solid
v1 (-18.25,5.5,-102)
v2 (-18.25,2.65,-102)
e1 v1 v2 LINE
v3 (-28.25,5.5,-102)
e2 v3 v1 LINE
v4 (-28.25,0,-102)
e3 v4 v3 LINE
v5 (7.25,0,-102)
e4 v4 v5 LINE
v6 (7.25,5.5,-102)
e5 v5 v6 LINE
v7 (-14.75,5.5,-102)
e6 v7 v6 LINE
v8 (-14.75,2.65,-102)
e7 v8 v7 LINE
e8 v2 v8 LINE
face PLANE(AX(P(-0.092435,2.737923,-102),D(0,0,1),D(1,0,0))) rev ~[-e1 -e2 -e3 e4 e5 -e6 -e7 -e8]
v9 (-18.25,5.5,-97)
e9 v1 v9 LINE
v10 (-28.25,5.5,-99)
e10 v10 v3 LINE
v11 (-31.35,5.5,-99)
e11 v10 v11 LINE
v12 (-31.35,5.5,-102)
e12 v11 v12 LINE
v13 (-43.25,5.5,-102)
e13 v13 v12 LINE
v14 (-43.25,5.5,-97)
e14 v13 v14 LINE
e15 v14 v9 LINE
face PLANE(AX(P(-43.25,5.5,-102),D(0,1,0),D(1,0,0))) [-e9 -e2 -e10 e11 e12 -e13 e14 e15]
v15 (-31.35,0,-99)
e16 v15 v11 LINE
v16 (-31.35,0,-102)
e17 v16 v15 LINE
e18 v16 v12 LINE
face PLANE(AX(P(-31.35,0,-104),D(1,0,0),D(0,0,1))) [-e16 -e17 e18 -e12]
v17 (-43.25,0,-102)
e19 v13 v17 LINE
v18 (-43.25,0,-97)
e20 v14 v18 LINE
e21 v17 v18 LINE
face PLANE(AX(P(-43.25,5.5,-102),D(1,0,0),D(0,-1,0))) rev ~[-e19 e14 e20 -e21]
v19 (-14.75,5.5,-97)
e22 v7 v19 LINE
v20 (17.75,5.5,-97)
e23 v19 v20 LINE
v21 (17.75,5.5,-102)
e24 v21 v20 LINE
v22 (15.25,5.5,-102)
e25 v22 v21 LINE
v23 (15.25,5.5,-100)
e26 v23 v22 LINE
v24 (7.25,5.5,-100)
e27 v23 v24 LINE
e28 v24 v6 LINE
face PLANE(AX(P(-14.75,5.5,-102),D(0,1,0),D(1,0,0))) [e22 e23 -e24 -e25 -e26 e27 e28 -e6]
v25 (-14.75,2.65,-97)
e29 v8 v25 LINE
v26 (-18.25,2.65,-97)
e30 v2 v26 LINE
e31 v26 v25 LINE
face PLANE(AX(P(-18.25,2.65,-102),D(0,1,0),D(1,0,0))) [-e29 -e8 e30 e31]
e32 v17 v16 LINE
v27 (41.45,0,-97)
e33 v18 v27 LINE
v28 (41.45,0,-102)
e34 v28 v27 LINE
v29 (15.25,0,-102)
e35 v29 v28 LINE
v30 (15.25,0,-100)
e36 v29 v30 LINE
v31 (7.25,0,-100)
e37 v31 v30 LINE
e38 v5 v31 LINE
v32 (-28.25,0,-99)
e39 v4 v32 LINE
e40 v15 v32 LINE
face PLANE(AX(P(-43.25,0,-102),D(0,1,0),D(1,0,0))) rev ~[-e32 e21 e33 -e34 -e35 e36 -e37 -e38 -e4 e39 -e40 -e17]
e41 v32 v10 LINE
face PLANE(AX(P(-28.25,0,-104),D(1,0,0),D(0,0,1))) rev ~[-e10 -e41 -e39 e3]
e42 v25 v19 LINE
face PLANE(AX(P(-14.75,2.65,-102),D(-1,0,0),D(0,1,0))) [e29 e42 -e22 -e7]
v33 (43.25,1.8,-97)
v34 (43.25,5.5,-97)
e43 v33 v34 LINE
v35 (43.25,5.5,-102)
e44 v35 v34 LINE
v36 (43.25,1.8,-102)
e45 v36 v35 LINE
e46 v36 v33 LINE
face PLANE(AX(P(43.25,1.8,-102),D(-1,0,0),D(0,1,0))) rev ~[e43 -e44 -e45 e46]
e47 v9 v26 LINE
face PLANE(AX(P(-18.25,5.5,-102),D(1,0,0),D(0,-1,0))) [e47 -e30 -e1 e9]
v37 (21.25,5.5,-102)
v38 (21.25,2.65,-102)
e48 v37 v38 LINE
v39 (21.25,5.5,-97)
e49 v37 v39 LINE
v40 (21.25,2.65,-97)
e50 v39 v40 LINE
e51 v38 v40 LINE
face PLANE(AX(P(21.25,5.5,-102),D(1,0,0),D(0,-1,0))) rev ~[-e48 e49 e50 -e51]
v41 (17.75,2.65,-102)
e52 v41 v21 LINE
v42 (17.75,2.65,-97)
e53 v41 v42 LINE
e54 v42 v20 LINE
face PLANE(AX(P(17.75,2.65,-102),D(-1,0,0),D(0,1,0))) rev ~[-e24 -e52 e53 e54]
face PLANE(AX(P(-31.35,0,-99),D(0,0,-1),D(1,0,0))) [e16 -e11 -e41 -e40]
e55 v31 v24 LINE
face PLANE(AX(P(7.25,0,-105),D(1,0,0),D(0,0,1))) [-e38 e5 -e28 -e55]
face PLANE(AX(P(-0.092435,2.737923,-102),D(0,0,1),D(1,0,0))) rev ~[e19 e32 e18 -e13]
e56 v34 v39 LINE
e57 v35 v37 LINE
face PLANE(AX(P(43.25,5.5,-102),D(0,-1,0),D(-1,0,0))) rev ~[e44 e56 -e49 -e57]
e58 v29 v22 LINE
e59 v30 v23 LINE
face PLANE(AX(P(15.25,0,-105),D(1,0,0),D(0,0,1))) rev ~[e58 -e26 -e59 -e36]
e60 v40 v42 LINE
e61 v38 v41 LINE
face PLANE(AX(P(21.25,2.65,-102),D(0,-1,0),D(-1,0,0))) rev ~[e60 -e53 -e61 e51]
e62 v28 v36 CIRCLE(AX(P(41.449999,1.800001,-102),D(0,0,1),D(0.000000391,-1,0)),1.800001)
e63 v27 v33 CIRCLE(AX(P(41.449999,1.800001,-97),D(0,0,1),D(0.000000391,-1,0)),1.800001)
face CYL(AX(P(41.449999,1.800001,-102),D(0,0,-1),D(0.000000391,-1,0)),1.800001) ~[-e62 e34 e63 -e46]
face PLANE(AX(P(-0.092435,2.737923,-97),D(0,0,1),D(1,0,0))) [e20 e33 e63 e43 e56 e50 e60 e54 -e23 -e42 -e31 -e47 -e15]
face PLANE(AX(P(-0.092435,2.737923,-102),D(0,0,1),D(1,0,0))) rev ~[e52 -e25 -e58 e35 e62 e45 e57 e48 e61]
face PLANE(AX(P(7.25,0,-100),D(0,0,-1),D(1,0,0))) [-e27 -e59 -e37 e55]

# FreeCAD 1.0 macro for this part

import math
import FreeCAD as App
import Part
import Sketcher

V = App.Vector
Q = App.Units.Quantity

doc = App.newDocument("Part")
body = doc.addObject("PartDesign::Body", "Body")

sketch1 = body.newObject("Sketcher::SketchObject", "Sketch")
sketch1.AttachmentSupport = (doc.getObject("XY_Plane"), [""])
sketch1.MapMode = "FlatFace"
sketch1.addGeometry([
    Part.LineSegment(V(-43.2, 0, 0), V(41.5, 0, 0)),
    Part.ArcOfCircle(Part.Circle(V(41.4, 1.8, 0), V(0, 0, 1), 1.8), math.radians(-90), math.radians(0)),
    Part.LineSegment(V(43.2, 1.8, 0), V(43.2, 5.5, 0)),
    Part.LineSegment(V(43.2, 5.5, 0), V(21.2, 5.5, 0)),
    Part.LineSegment(V(21.2, 5.5, 0), V(21.2, 2.6, 0)),
    Part.LineSegment(V(21.2, 2.6, 0), V(17.8, 2.6, 0)),
    Part.LineSegment(V(17.8, 2.6, 0), V(17.8, 5.5, 0)),
    Part.LineSegment(V(17.8, 5.5, 0), V(-14.8, 5.5, 0)),
    Part.LineSegment(V(-14.8, 5.5, 0), V(-14.8, 2.6, 0)),
    Part.LineSegment(V(-14.8, 2.6, 0), V(-18.2, 2.6, 0)),
    Part.LineSegment(V(-18.2, 2.6, 0), V(-18.2, 5.5, 0)),
    Part.LineSegment(V(-18.2, 5.5, 0), V(-43.2, 5.5, 0)),
    Part.LineSegment(V(-43.2, 5.5, 0), V(-43.2, 0, 0)),
], False)
sketch1.addConstraint([
    Sketcher.Constraint("Tangent", 0, 2, 1, 1),
    Sketcher.Constraint("Tangent", 1, 2, 2, 1),
    Sketcher.Constraint("Coincident", 2, 2, 3, 1),
    Sketcher.Constraint("Coincident", 3, 2, 4, 1),
    Sketcher.Constraint("Coincident", 4, 2, 5, 1),
    Sketcher.Constraint("Coincident", 5, 2, 6, 1),
    Sketcher.Constraint("Coincident", 6, 2, 7, 1),
    Sketcher.Constraint("Coincident", 7, 2, 8, 1),
    Sketcher.Constraint("Coincident", 8, 2, 9, 1),
    Sketcher.Constraint("Coincident", 9, 2, 10, 1),
    Sketcher.Constraint("Coincident", 10, 2, 11, 1),
    Sketcher.Constraint("Coincident", 11, 2, 12, 1),
    Sketcher.Constraint("Coincident", 12, 2, 0, 1),
    Sketcher.Constraint("Horizontal", 0),
    Sketcher.Constraint("Vertical", 2),
    Sketcher.Constraint("Horizontal", 3),
    Sketcher.Constraint("Vertical", 4),
    Sketcher.Constraint("Horizontal", 5),
    Sketcher.Constraint("Vertical", 6),
    Sketcher.Constraint("Horizontal", 7),
    Sketcher.Constraint("Vertical", 8),
    Sketcher.Constraint("Horizontal", 9),
    Sketcher.Constraint("Vertical", 10),
    Sketcher.Constraint("Horizontal", 11),
    Sketcher.Constraint("Vertical", 12),
    Sketcher.Constraint("Symmetric", 2, 2, 11, 2, -2),
    Sketcher.Constraint("PointOnObject", 0, 2, -1),
    Sketcher.Constraint("Horizontal", 3, 2, 6, 2),
    Sketcher.Constraint("Horizontal", 5, 2, 8, 2),
    Sketcher.Constraint("Equal", 5, 9),
    Sketcher.Constraint("Radius", 1, Q("1.800001 mm")),
    Sketcher.Constraint("DistanceX", 3, 2, 3, 1, Q("22 mm")),
    Sketcher.Constraint("DistanceX", 11, 2, 11, 1, Q("25 mm")),
    Sketcher.Constraint("DistanceX", 0, 1, 0, 2, Q("84.7 mm")),
    Sketcher.Constraint("DistanceX", 5, 2, 5, 1, Q("3.5 mm")),
    Sketcher.Constraint("DistanceY", 2, 1, 2, 2, Q("3.7 mm")),
    Sketcher.Constraint("DistanceY", 4, 2, 4, 1, Q("2.85 mm")),
])
pad1 = body.newObject("PartDesign::Pad", "Pad")
pad1.Profile = sketch1
pad1.Length = 5

sketch2 = body.newObject("Sketcher::SketchObject", "Sketch001")
sketch2.AttachmentSupport = (doc.getObject("XZ_Plane"), [""])
sketch2.MapMode = "FlatFace"
sketch2.addGeometry([
    Part.LineSegment(V(7, 2, 0), V(7, -3, 0)),
    Part.LineSegment(V(7, -3, 0), V(15, -3, 0)),
    Part.LineSegment(V(15, -3, 0), V(15, 2, 0)),
    Part.LineSegment(V(15, 2, 0), V(7, 2, 0)),
], False)
sketch2.addConstraint([
    Sketcher.Constraint("Coincident", 0, 2, 1, 1),
    Sketcher.Constraint("Coincident", 1, 2, 2, 1),
    Sketcher.Constraint("Coincident", 2, 2, 3, 1),
    Sketcher.Constraint("Coincident", 3, 2, 0, 1),
    Sketcher.Constraint("Vertical", 0),
    Sketcher.Constraint("Horizontal", 1),
    Sketcher.Constraint("Vertical", 2),
    Sketcher.Constraint("Horizontal", 3),
    Sketcher.Constraint("DistanceX", 1, 1, 1, 2, Q("8 mm")),
    Sketcher.Constraint("DistanceY", 0, 2, 0, 1, Q("5 mm")),
    Sketcher.Constraint("DistanceY", 0, 2, -1, 1, Q("3 mm")),
    Sketcher.Constraint("DistanceX", -1, 1, 0, 2, Q("7.25 mm")),
])
pocket1 = body.newObject("PartDesign::Pocket", "Pocket")
pocket1.Profile = sketch2
pocket1.Length = 10

sketch3 = body.newObject("Sketcher::SketchObject", "Sketch002")
sketch3.AttachmentSupport = (doc.getObject("XZ_Plane"), [""])
sketch3.MapMode = "FlatFace"
sketch3.addGeometry([
    Part.LineSegment(V(-31.4, 3, 0), V(-31.4, -2, 0)),
    Part.LineSegment(V(-31.4, -2, 0), V(-28.2, -2, 0)),
    Part.LineSegment(V(-28.2, -2, 0), V(-28.2, 3, 0)),
    Part.LineSegment(V(-28.2, 3, 0), V(-31.4, 3, 0)),
], False)
sketch3.addConstraint([
    Sketcher.Constraint("Coincident", 0, 2, 1, 1),
    Sketcher.Constraint("Coincident", 1, 2, 2, 1),
    Sketcher.Constraint("Coincident", 2, 2, 3, 1),
    Sketcher.Constraint("Coincident", 3, 2, 0, 1),
    Sketcher.Constraint("Vertical", 0),
    Sketcher.Constraint("Horizontal", 1),
    Sketcher.Constraint("Vertical", 2),
    Sketcher.Constraint("Horizontal", 3),
    Sketcher.Constraint("DistanceY", 0, 2, 0, 1, Q("5 mm")),
    Sketcher.Constraint("DistanceX", 1, 1, 1, 2, Q("3.1 mm")),
    Sketcher.Constraint("DistanceY", 0, 2, -1, 1, Q("2 mm")),
    Sketcher.Constraint("DistanceX", 0, 2, -1, 1, Q("31.35 mm")),
])
pocket2 = body.newObject("PartDesign::Pocket", "Pocket001")
pocket2.Profile = sketch3
pocket2.Length = 10
body2 = doc.addObject("PartDesign::Body", "Body001")
doc.recompute()

body.Placement = App.Placement(V(0, 0, -102), App.Rotation(V(0, 0, 1), 0))
boolean = body2.newObject("PartDesign::Boolean", "Boolean")
boolean.Type = "Fuse"
boolean.addObjects([body])

doc.recompute()
